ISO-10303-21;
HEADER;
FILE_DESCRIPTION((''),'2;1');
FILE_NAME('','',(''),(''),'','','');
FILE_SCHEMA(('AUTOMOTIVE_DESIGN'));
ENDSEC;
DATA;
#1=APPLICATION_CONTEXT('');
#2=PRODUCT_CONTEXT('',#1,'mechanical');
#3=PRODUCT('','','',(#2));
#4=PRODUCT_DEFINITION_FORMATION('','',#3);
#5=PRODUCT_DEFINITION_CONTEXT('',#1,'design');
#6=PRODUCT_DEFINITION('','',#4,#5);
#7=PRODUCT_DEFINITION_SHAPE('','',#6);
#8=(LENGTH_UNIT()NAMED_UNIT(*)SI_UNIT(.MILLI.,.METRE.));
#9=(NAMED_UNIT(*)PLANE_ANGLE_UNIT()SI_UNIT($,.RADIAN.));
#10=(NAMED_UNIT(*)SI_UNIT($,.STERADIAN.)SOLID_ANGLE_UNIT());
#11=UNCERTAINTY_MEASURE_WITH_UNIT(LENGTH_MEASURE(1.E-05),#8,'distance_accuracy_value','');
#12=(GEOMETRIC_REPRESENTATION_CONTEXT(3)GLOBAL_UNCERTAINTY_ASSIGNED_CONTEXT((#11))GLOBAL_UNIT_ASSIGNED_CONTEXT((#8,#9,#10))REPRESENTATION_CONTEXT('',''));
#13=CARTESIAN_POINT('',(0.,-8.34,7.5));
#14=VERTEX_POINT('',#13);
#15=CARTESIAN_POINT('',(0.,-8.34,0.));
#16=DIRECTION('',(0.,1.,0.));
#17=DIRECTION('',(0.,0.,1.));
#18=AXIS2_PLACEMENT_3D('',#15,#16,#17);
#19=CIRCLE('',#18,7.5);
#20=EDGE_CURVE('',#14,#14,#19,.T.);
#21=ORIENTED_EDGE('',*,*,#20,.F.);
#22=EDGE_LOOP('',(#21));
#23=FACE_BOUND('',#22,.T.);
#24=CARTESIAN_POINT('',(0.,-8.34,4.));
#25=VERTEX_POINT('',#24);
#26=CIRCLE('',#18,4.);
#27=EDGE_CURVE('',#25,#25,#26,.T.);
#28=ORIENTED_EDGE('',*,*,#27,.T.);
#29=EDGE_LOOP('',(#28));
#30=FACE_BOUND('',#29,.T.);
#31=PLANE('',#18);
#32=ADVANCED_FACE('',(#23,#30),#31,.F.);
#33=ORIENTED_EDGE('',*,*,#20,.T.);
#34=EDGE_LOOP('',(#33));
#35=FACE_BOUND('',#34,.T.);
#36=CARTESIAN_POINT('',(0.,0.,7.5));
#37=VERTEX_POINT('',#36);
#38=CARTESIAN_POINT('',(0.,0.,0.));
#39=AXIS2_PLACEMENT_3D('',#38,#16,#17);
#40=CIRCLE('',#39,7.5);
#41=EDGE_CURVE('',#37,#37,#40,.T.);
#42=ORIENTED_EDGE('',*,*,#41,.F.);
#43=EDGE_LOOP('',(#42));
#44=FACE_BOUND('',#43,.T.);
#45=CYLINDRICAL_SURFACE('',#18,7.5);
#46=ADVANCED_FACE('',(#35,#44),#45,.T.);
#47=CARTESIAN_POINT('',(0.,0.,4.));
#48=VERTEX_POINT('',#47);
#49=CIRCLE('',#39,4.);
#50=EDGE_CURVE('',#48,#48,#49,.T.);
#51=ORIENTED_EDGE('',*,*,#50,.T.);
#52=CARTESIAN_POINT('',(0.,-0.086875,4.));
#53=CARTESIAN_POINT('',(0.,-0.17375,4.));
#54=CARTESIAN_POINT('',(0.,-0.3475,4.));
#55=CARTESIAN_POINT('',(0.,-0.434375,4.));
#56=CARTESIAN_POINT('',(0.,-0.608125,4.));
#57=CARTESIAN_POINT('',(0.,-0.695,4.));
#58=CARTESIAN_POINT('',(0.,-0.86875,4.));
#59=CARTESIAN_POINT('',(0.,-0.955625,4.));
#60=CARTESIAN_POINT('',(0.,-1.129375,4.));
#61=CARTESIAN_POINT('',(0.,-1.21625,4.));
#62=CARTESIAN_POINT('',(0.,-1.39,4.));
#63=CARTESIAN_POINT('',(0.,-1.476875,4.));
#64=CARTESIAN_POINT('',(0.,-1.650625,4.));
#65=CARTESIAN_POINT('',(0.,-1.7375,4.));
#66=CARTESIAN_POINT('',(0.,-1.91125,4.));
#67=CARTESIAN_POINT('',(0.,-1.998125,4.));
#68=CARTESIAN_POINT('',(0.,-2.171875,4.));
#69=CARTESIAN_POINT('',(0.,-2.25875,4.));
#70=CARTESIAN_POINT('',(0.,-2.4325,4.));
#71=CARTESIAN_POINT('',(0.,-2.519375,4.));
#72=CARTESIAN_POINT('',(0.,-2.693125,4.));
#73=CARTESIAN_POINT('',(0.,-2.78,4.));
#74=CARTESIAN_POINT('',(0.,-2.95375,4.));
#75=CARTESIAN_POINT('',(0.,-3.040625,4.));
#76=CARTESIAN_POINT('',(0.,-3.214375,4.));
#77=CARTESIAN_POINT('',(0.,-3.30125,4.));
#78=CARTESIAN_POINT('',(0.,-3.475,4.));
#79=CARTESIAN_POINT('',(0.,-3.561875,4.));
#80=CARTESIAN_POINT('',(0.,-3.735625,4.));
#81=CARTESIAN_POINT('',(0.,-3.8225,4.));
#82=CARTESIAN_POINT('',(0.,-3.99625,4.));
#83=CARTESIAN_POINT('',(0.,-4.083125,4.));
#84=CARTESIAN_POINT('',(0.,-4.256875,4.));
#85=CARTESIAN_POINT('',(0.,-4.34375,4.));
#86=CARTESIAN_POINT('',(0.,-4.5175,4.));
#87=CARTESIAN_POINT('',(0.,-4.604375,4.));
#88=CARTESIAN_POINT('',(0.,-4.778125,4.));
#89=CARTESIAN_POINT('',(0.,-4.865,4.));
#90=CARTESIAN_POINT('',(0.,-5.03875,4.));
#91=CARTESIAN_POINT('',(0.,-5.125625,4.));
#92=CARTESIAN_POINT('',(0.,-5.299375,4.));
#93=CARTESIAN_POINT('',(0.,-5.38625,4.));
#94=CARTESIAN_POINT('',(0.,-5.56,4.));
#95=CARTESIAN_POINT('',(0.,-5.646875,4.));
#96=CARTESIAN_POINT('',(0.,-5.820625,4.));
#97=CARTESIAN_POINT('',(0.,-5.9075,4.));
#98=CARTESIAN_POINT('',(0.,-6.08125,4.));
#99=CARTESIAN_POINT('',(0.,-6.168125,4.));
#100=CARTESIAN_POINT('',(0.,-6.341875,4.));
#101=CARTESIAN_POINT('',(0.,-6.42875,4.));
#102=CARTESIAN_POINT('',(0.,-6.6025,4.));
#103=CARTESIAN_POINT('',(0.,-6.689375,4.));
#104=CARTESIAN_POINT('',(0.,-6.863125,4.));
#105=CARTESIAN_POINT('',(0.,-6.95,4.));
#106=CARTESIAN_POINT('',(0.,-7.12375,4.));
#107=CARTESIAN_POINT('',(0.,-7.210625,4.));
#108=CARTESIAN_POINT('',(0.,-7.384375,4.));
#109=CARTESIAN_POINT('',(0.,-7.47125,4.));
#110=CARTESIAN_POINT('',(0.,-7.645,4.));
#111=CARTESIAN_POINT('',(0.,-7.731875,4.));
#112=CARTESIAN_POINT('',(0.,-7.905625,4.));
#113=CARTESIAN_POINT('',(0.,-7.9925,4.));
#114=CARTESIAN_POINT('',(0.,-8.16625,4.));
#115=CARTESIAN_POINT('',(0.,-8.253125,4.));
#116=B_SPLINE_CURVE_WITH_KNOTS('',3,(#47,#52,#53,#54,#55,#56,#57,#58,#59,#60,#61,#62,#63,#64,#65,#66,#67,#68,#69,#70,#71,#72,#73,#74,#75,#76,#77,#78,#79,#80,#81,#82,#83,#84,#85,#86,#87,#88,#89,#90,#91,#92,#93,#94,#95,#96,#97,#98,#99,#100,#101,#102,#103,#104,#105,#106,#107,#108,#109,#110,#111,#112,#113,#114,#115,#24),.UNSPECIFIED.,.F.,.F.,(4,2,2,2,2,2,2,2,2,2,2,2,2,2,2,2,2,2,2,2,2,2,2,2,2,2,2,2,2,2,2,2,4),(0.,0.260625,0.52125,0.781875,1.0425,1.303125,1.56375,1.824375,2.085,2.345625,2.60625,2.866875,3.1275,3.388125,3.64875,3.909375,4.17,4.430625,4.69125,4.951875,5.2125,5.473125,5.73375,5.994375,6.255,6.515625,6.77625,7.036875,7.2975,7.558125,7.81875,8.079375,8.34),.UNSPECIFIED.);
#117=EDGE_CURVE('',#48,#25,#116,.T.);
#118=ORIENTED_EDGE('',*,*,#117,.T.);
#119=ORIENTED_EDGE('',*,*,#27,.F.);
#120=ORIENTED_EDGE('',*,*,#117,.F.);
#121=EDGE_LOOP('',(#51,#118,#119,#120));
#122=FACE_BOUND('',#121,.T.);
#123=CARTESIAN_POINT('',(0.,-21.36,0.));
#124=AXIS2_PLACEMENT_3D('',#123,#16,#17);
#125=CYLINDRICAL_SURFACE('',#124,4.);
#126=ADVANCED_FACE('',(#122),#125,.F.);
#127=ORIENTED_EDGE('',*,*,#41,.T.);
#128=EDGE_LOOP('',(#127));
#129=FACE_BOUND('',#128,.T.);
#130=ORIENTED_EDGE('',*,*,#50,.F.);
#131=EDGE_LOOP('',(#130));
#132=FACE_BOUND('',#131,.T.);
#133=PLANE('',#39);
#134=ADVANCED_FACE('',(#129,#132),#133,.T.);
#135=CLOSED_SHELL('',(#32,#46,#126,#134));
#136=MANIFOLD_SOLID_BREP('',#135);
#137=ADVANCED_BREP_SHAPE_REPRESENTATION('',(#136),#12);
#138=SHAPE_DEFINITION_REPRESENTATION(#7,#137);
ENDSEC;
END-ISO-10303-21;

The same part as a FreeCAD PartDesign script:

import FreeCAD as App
import Part
import Sketcher
from FreeCAD import Vector
Q = App.Units.Quantity

doc = App.newDocument("Part")
body = doc.addObject("PartDesign::Body", "Body")

# Sketch on XZ plane
sketch1 = body.newObject("Sketcher::SketchObject", "Sketch")
sketch1.AttachmentSupport = (doc.getObject("XZ_Plane"), [""])
sketch1.MapMode = "FlatFace"
sketch1.addGeometry(Part.Circle(Vector(0, 0, 0), Vector(0, 0, 1), 8), False)
sketch1.addConstraint(Sketcher.Constraint("Coincident", 0, 3, -1, 1))
sketch1.addConstraint(Sketcher.Constraint("Diameter", 0, Q("15 mm")))
pad1 = body.newObject("PartDesign::Pad", "Pad")
pad1.Profile = sketch1
pad1.Length = 8.34

# Sketch on XZ plane
sketch2 = body.newObject("Sketcher::SketchObject", "Sketch001")
sketch2.AttachmentSupport = (doc.getObject("XZ_Plane"), [""])
sketch2.MapMode = "FlatFace"
sketch2.addGeometry(Part.Circle(Vector(0, 0, 0), Vector(0, 0, 1), 4), False)
sketch2.addConstraint(Sketcher.Constraint("Coincident", 0, 3, -1, 1))
sketch2.addConstraint(Sketcher.Constraint("Diameter", 0, Q("8 mm")))
pocket1 = body.newObject("PartDesign::Pocket", "Pocket")
pocket1.Profile = sketch2
pocket1.Length = 21.36
pocket1.Reversed = True

doc.recompute()
